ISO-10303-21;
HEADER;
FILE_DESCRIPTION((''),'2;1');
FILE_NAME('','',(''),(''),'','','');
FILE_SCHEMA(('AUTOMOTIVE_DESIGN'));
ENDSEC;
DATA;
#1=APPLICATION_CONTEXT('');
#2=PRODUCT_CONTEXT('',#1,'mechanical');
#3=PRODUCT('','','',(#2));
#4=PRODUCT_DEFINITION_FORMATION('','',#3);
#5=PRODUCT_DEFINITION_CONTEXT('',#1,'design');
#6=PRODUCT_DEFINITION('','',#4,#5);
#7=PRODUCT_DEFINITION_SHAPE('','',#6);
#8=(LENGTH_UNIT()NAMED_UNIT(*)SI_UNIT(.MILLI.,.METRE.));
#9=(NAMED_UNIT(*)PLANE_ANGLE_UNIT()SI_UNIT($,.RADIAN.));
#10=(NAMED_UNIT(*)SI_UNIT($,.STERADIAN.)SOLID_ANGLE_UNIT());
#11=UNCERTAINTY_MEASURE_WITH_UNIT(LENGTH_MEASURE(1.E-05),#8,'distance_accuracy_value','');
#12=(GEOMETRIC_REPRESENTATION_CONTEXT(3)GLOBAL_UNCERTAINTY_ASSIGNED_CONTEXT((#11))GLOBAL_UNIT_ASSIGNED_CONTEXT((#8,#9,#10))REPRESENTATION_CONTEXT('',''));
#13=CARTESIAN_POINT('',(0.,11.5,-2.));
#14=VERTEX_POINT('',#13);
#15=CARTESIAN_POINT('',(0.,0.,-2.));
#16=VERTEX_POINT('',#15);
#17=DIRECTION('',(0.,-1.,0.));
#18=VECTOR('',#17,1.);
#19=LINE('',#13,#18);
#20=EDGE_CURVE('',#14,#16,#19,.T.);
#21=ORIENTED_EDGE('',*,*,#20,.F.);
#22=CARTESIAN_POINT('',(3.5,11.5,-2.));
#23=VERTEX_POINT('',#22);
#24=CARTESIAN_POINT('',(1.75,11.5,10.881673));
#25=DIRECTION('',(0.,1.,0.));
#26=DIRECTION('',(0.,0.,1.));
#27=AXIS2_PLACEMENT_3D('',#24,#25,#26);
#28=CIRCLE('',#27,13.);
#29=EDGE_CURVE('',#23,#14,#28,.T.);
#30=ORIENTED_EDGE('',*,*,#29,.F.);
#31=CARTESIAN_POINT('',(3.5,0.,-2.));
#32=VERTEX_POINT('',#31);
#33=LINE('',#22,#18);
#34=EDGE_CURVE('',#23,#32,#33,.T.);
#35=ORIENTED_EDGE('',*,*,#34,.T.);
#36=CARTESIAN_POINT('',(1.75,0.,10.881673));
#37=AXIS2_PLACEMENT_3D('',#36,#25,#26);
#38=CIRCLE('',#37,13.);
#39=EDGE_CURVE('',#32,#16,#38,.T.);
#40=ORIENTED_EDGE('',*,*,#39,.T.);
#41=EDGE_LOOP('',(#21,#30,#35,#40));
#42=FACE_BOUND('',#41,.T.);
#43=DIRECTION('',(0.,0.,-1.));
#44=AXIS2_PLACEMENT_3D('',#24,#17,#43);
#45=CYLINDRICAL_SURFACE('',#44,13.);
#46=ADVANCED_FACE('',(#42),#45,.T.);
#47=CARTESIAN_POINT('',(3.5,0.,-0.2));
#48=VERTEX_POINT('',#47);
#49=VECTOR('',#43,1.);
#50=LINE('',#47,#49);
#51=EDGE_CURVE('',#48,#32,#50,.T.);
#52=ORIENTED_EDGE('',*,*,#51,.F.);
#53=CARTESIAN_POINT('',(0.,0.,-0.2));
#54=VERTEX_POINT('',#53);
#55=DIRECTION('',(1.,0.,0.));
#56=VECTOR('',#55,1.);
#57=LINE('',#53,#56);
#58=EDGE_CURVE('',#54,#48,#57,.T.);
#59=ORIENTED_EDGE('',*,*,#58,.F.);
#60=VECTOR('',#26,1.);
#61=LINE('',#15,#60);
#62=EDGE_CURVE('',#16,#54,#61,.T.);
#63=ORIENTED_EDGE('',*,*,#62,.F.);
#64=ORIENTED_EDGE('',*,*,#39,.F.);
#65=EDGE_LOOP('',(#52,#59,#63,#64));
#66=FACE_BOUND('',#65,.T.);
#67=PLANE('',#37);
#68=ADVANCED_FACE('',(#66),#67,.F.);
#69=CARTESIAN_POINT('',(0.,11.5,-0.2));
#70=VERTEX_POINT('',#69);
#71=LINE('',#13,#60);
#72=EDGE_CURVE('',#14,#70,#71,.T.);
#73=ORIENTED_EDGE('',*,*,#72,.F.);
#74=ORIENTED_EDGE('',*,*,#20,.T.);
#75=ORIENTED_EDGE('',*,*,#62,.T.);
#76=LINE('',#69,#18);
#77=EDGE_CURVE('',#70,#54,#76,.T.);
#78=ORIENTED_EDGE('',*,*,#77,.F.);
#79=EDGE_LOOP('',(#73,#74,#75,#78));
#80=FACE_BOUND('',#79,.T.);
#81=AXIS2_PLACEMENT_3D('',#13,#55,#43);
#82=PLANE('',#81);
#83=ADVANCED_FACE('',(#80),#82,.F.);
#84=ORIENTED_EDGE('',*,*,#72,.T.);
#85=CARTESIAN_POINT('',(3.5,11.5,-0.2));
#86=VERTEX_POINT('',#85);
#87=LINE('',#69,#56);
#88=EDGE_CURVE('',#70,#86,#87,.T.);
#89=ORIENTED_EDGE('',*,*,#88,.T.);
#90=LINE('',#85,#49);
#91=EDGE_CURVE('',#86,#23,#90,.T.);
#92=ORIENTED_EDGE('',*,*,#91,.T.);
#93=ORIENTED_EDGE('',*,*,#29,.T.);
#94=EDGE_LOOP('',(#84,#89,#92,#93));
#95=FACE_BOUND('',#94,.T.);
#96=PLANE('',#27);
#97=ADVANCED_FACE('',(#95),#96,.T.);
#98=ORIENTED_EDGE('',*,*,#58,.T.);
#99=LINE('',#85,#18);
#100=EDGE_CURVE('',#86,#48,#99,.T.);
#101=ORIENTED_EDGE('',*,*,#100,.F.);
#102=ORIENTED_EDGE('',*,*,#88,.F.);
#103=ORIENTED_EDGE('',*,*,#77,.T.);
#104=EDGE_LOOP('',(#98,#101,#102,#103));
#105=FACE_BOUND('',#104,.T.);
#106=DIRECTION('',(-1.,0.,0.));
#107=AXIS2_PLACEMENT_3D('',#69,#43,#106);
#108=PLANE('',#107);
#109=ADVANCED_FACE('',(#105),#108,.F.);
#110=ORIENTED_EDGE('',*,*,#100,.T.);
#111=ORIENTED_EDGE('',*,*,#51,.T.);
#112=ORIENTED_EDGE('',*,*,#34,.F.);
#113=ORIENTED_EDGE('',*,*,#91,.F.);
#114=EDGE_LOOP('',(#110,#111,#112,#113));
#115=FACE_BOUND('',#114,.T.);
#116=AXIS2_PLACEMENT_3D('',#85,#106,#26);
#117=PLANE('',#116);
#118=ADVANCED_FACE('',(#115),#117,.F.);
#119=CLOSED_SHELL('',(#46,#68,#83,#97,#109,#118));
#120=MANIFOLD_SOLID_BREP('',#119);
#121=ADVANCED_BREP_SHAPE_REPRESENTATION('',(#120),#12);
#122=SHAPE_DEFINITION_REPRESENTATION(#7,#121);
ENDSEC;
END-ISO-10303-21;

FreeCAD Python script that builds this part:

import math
import FreeCAD as App
import Part
import Sketcher
from FreeCAD import Vector
Q = App.Units.Quantity

doc = App.newDocument("Part")
body = doc.addObject("PartDesign::Body", "Body")

sketch1 = doc.addObject("Sketcher::SketchObject", "Sketch")
body.addObject(sketch1)
sketch1.AttachmentSupport = (doc.XZ_Plane, [""])
sketch1.MapMode = "FlatFace"
sketch1.addGeometry(Part.LineSegment(Vector(0, -2, 0), Vector(0, -0.2, 0)), False)
sketch1.addGeometry(Part.LineSegment(Vector(0, -0.2, 0), Vector(3.5, -0.2, 0)), False)
sketch1.addGeometry(Part.LineSegment(Vector(3.5, -0.2, 0), Vector(3.5, -2, 0)), False)
sketch1.addGeometry(Part.ArcOfCircle(Part.Circle(Vector(1.8, 10.9, 0), Vector(0, 0, 1), 13), math.radians(-97.74), math.radians(-82.26)), False)
sketch1.addConstraint(Sketcher.Constraint("Coincident", 0, 2, 1, 1))
sketch1.addConstraint(Sketcher.Constraint("Coincident", 1, 2, 2, 1))
sketch1.addConstraint(Sketcher.Constraint("Coincident", 2, 2, 3, 2))
sketch1.addConstraint(Sketcher.Constraint("Coincident", 3, 1, 0, 1))
sketch1.addConstraint(Sketcher.Constraint("Vertical", 0))
sketch1.addConstraint(Sketcher.Constraint("Horizontal", 1))
sketch1.addConstraint(Sketcher.Constraint("Vertical", 2))
sketch1.addConstraint(Sketcher.Constraint("PointOnObject", 0, 2, -2))
sketch1.addConstraint(Sketcher.Constraint("Horizontal", 2, 2, 3, 1))
sketch1.addConstraint(Sketcher.Constraint("Radius", 3, Q("13 mm")))
sketch1.addConstraint(Sketcher.Constraint("DistanceX", 1, 1, 1, 2, Q("3.5 mm")))
sketch1.addConstraint(Sketcher.Constraint("DistanceY", 0, 1, 0, 2, Q("1.8 mm")))
sketch1.addConstraint(Sketcher.Constraint("DistanceY", 2, 2, -1, 1, Q("2 mm")))
pad1 = doc.addObject("PartDesign::Pad", "Pad")
body.addObject(pad1)
pad1.Profile = sketch1
pad1.Length = 11.5
pad1.Reversed = True

doc.recompute()
